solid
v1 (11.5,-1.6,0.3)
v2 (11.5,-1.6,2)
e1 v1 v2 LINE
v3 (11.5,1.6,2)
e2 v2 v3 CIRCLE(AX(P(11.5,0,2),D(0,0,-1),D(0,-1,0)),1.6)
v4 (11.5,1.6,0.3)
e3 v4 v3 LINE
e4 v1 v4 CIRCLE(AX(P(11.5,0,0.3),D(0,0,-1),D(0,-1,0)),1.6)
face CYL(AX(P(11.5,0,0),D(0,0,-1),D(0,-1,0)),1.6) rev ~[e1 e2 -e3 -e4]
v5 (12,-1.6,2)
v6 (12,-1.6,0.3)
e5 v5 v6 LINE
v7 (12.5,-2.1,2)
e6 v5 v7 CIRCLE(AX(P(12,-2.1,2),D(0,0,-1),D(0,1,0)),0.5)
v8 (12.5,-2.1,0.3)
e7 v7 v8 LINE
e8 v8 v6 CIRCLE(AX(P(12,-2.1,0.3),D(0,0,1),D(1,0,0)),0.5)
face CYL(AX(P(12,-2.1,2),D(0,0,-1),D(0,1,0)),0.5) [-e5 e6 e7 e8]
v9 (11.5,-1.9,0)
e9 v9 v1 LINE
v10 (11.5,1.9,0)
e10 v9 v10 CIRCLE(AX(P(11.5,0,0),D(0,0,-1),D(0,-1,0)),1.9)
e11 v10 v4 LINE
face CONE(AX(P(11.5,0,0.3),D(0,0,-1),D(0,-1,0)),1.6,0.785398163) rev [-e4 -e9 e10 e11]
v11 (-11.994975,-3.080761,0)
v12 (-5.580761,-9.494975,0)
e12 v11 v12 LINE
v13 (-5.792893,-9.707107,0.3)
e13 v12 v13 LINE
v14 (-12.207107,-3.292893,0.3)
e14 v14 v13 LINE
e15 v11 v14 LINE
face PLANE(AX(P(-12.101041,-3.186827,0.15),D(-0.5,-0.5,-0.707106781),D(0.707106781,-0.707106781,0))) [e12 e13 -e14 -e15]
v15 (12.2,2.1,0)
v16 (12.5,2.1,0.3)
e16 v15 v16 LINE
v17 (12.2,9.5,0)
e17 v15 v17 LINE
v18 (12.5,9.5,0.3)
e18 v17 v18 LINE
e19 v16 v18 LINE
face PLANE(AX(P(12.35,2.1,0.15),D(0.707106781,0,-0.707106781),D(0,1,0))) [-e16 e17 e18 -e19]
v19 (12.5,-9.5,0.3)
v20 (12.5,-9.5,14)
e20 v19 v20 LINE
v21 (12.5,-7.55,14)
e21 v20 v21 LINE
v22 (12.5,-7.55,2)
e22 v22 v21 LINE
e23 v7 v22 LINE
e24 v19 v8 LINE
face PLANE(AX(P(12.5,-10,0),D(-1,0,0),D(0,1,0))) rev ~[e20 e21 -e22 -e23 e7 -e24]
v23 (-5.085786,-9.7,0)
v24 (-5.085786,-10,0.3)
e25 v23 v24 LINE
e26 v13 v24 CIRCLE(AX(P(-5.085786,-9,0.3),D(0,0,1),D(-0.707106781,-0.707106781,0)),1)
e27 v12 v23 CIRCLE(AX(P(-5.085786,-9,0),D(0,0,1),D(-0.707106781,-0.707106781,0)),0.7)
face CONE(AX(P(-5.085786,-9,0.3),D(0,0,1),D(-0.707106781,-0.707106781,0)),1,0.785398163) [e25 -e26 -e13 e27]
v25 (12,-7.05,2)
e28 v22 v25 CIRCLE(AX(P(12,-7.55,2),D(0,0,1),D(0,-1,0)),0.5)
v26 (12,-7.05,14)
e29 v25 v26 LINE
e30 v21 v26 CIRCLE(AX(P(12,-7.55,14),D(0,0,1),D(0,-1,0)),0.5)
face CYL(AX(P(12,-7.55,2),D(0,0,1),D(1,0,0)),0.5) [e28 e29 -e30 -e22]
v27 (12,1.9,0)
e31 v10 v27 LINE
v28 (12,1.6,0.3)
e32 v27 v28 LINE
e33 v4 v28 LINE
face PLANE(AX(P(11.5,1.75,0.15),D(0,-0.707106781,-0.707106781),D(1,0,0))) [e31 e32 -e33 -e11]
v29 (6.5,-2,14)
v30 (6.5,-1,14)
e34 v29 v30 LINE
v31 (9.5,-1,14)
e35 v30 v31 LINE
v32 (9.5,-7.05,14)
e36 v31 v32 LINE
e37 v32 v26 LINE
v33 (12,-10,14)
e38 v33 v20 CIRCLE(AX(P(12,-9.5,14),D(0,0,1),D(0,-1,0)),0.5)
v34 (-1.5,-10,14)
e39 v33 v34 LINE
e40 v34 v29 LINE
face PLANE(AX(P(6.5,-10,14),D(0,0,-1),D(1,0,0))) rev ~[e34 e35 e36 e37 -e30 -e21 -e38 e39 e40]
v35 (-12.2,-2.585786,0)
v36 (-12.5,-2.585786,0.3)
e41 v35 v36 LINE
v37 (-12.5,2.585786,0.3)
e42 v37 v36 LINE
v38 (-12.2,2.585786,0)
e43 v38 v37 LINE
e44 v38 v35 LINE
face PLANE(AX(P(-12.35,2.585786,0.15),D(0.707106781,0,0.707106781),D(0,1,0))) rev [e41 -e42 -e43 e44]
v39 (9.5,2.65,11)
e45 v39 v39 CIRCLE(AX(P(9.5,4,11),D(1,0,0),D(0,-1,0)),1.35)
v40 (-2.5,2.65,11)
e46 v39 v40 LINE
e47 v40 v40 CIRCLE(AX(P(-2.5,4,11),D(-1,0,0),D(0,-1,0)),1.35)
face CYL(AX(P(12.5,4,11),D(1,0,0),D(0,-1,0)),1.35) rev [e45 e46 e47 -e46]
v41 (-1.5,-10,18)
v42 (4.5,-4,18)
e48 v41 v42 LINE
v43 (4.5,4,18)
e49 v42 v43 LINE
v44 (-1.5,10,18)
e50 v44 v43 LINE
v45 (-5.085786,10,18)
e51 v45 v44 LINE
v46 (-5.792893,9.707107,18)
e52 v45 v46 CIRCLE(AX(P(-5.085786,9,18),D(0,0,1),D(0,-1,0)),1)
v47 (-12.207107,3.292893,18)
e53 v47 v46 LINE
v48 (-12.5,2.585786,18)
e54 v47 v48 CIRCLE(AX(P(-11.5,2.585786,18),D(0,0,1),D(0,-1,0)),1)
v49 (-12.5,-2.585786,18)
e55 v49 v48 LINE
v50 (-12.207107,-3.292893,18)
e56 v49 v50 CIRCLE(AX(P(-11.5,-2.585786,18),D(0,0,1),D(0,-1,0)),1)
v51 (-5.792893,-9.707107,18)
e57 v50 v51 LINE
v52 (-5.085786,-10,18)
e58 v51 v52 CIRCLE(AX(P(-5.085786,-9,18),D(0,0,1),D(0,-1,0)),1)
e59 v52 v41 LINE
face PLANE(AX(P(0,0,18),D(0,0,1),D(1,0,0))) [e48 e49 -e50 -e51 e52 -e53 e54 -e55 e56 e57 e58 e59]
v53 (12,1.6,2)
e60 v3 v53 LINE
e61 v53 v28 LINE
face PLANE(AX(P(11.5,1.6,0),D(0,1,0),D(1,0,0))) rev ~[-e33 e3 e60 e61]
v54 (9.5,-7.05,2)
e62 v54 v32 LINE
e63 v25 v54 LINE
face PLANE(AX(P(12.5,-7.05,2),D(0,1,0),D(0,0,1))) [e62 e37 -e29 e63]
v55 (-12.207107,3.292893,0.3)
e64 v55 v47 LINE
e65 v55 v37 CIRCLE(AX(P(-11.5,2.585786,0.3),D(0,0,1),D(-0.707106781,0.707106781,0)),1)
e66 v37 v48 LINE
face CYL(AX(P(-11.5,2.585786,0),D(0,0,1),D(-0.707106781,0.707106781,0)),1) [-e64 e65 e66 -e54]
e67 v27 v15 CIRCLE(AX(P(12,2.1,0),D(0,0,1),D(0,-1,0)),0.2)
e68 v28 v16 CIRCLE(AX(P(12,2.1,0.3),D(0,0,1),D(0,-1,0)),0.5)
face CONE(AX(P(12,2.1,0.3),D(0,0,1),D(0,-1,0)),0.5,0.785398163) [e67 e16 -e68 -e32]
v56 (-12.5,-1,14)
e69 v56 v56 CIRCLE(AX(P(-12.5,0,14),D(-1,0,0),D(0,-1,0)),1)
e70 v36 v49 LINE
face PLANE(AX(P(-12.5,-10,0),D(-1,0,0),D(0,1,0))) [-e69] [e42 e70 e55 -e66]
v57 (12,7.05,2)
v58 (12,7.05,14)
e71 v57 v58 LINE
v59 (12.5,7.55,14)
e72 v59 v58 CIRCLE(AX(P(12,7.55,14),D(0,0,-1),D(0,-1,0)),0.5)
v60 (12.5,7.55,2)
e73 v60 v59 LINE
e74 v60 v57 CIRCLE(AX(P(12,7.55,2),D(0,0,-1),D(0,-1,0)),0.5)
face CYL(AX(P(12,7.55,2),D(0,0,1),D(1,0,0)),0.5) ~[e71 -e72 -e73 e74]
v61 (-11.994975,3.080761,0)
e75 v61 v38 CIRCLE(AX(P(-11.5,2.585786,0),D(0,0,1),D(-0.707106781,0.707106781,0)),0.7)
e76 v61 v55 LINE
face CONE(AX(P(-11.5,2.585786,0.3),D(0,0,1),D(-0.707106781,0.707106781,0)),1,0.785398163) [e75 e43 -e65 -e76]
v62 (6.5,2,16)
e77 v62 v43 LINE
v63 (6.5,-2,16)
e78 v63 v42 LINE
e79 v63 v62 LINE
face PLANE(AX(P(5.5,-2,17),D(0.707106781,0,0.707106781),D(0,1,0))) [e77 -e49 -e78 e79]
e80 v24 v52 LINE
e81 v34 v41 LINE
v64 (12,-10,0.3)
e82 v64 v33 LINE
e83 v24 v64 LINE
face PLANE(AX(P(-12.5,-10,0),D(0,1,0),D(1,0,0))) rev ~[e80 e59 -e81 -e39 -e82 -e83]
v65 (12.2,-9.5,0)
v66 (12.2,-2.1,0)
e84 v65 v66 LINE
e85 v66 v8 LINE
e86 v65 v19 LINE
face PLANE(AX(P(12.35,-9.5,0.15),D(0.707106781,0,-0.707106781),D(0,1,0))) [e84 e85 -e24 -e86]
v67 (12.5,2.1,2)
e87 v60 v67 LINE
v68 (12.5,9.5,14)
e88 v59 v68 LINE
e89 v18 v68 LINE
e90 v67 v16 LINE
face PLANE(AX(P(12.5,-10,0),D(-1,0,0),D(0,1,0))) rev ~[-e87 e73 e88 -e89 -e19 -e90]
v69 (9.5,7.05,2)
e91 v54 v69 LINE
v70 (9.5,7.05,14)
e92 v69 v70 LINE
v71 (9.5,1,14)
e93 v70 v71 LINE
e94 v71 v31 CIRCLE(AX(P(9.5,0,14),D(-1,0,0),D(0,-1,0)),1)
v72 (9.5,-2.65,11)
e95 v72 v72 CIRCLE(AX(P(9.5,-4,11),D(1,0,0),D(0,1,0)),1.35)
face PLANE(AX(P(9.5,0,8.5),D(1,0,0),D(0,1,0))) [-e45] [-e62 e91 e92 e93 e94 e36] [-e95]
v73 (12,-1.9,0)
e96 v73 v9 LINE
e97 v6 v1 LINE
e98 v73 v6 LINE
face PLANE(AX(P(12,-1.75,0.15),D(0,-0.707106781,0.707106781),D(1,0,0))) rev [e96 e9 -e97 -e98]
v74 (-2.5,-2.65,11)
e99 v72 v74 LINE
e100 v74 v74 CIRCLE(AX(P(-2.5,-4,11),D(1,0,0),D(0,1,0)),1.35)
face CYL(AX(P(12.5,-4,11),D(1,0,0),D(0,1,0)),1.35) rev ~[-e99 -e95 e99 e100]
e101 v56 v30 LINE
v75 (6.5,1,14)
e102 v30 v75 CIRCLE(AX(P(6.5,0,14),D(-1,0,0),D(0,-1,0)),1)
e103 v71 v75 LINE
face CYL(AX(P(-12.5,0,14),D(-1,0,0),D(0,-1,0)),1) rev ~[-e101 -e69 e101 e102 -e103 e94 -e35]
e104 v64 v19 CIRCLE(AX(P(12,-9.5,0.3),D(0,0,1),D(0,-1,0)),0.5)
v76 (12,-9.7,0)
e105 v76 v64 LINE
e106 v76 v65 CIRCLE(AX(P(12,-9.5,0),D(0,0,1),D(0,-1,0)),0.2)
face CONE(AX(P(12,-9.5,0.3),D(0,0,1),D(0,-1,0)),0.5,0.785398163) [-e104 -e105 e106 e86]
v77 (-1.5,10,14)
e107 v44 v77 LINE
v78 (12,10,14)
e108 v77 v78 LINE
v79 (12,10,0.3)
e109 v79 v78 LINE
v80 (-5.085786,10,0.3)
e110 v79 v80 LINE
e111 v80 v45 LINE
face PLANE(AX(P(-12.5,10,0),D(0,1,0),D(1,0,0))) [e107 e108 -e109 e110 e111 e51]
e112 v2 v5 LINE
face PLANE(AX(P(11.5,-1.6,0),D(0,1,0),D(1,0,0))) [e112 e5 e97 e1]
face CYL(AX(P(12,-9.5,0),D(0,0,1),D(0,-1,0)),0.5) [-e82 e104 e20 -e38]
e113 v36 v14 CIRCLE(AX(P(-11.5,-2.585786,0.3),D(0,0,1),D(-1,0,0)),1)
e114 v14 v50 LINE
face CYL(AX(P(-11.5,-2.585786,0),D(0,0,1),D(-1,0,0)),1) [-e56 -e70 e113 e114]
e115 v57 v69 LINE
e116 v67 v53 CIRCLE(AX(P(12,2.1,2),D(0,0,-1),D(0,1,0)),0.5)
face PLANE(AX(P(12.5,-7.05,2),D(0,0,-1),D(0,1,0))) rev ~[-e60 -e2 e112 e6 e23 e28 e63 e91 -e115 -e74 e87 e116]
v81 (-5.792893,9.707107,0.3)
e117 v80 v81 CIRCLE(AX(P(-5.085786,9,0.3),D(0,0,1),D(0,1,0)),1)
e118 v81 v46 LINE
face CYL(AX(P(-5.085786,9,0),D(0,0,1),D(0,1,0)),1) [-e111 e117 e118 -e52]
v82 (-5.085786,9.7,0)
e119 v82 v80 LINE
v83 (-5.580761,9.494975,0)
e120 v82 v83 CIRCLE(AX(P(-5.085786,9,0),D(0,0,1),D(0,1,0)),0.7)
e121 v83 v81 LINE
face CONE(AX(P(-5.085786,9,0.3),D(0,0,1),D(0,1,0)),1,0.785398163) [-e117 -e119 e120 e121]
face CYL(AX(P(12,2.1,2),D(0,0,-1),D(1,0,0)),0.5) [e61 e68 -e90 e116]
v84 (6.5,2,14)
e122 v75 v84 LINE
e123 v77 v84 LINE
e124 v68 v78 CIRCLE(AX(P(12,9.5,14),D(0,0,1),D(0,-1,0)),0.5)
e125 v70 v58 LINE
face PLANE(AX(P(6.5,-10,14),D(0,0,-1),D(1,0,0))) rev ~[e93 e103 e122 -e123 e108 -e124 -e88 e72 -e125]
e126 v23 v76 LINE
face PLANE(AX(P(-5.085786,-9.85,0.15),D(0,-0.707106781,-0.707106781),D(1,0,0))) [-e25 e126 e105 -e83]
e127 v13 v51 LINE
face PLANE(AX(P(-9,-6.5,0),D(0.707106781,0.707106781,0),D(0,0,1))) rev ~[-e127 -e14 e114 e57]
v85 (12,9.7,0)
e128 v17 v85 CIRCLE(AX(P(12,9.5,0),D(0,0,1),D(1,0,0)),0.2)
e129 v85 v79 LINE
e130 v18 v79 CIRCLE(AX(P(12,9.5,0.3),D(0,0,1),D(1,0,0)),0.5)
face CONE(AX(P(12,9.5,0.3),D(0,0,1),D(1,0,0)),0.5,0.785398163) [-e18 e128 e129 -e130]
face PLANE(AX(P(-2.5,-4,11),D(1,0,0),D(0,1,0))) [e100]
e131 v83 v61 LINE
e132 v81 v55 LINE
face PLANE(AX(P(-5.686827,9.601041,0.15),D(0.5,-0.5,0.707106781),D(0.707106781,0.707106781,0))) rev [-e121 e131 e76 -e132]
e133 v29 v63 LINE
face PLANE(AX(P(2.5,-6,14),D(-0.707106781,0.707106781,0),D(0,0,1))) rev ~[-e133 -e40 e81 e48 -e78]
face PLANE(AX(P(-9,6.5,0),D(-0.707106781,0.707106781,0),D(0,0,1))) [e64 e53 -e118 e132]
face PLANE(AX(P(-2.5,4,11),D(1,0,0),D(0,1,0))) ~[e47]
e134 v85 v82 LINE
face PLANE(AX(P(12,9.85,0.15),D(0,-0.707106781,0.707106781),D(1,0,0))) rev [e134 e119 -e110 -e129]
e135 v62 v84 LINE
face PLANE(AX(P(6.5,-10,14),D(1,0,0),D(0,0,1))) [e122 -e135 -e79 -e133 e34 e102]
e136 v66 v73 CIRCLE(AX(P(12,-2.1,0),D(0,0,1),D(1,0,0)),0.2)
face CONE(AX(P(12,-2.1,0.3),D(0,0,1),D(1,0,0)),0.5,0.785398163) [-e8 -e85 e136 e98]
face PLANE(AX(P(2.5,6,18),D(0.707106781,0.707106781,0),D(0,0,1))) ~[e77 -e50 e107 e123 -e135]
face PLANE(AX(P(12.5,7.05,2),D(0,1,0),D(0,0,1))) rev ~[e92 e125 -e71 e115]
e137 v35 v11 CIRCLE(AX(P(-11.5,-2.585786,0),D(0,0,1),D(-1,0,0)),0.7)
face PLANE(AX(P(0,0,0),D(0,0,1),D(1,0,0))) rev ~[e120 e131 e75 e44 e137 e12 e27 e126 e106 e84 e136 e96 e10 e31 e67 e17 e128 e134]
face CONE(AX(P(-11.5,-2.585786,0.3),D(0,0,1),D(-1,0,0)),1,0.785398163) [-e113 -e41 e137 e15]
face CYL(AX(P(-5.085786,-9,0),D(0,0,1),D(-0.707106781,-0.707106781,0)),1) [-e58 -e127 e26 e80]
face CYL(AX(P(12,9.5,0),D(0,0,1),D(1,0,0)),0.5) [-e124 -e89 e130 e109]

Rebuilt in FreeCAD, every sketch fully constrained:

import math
import FreeCAD as App
import Part
import Sketcher
Q = App.Units.Quantity


def edges_at(feature, points):
    """Names of the edges that pass closest to the given points."""
    edges = feature.Shape.Edges
    near = lambda p: min(range(len(edges)), key=lambda i: edges[i].distToShape(Part.Vertex(*p))[0])
    return sorted({f"Edge{near(p) + 1}" for p in points})


def add_polygon(sketch, points):
    """Adds a closed chain of lines whose ends are joined by coincident constraints."""
    first, n = sketch.GeometryCount, len(points)
    for a, b in zip(points, points[1:] + points[:1]):
        sketch.addGeometry(Part.LineSegment(App.Vector(*a, 0), App.Vector(*b, 0)), False)
    for i in range(n):
        sketch.addConstraint(Sketcher.Constraint("Coincident", first + i, 2, first + (i + 1) % n, 1))

doc = App.newDocument("Part")
body = doc.addObject("PartDesign::Body", "Body")

# Sketch on XY plane
sketch1 = body.newObject("Sketcher::SketchObject", "Sketch")
sketch1.AttachmentSupport = (doc.getObject("XY_Plane"), [""])
sketch1.MapMode = "FlatFace"
add_polygon(sketch1, [(-12, 10), (-12, -10), (12, -10), (12, 10)])  # lines 0-3
sketch1.addConstraint([
    Sketcher.Constraint("Vertical", 0),
    Sketcher.Constraint("Horizontal", 1),
    Sketcher.Constraint("Vertical", 2),
    Sketcher.Constraint("Horizontal", 3),
    Sketcher.Constraint("Symmetric", 0, 2, 2, 2, -1, 1),
    Sketcher.Constraint("DistanceX", 1, 1, 1, 2, Q("25 mm")),
    Sketcher.Constraint("DistanceY", 0, 2, 0, 1, Q("20 mm")),
])
pad1 = body.newObject("PartDesign::Pad", "Pad")
pad1.Profile = sketch1
pad1.Length = 18

# Sketch on YZ plane
sketch2 = body.newObject("Sketcher::SketchObject", "Sketch001")
sketch2.AttachmentSupport = (doc.getObject("YZ_Plane"), [""])
sketch2.MapMode = "FlatFace"
sketch2.AttachmentOffset = App.Placement(App.Vector(0, 0, -12.5), App.Rotation())
sketch2.addGeometry(Part.Circle(App.Vector(0, 14, 0), App.Vector(0, 0, 1), 1), False)
sketch2.addConstraint([
    Sketcher.Constraint("PointOnObject", 0, 3, -2),
    Sketcher.Constraint("Diameter", 0, Q("2 mm")),
    Sketcher.Constraint("DistanceY", -1, 1, 0, 3, Q("14 mm")),
])
pocket1 = body.newObject("PartDesign::Pocket", "Pocket")
pocket1.Profile = sketch2
pocket1.Type = "ThroughAll"
pocket1.Reversed = True

# Sketch on XZ plane
sketch3 = body.newObject("Sketcher::SketchObject", "Sketch002")
sketch3.AttachmentSupport = (doc.getObject("XZ_Plane"), [""])
sketch3.MapMode = "FlatFace"
sketch3.AttachmentOffset = App.Placement(App.Vector(0, 0, 10), App.Rotation())
add_polygon(sketch3, [(6, 22), (6, 14), (12, 14), (12, 22)])  # lines 0-3
sketch3.addConstraint([
    Sketcher.Constraint("Vertical", 0),
    Sketcher.Constraint("Horizontal", 1),
    Sketcher.Constraint("Vertical", 2),
    Sketcher.Constraint("Horizontal", 3),
    Sketcher.Constraint("DistanceX", 1, 1, 1, 2, Q("6 mm")),
    Sketcher.Constraint("DistanceY", 0, 2, 0, 1, Q("8 mm")),
    Sketcher.Constraint("DistanceY", -1, 1, 0, 2, Q("14 mm")),
    Sketcher.Constraint("DistanceX", -1, 1, 0, 2, Q("6.5 mm")),
])
pocket2 = body.newObject("PartDesign::Pocket", "Pocket001")
pocket2.Profile = sketch3
pocket2.Type = "ThroughAll"

# Sketch on YZ plane
sketch4 = body.newObject("Sketcher::SketchObject", "Sketch003")
sketch4.AttachmentSupport = (doc.getObject("YZ_Plane"), [""])
sketch4.MapMode = "FlatFace"
sketch4.AttachmentOffset = App.Placement(App.Vector(0, 0, 12.5), App.Rotation())
sketch4.addGeometry(Part.Circle(App.Vector(-4, 11, 0), App.Vector(0, 0, 1), 1.4), False)
sketch4.addConstraint([
    Sketcher.Constraint("Diameter", 0, Q("2.7 mm")),
    Sketcher.Constraint("DistanceX", 0, 3, -1, 1, Q("4 mm")),
    Sketcher.Constraint("DistanceY", -1, 1, 0, 3, Q("11 mm")),
])
pocket3 = body.newObject("PartDesign::Pocket", "Pocket002")
pocket3.Profile = sketch4
pocket3.Length = 15
doc.recompute()

mirrored = body.newObject("PartDesign::Mirrored", "Mirrored")
mirrored.Originals = [pocket3]
mirrored.MirrorPlane = (doc.getObject("XZ_Plane"), [""])
body.Tip = mirrored
doc.recompute()

chamfer = body.newObject("PartDesign::Chamfer", "Chamfer")
chamfer.Base = (mirrored, edges_at(mirrored, [(6.5, -10, 16), (6.5, 10, 16)]))
chamfer.Size = 8
doc.recompute()

chamfer2 = body.newObject("PartDesign::Chamfer", "Chamfer001")
chamfer2.Base = (chamfer, edges_at(chamfer, [(6.5, 0, 18)]))
chamfer2.Size = 2

# Sketch on YZ plane
sketch5 = body.newObject("Sketcher::SketchObject", "Sketch004")
sketch5.AttachmentSupport = (doc.getObject("YZ_Plane"), [""])
sketch5.MapMode = "FlatFace"
sketch5.AttachmentOffset = App.Placement(App.Vector(0, 0, 12.5), App.Rotation())
add_polygon(sketch5, [(-7, 15), (-7, 2), (7, 2), (7, 15)])  # lines 0-3
sketch5.addConstraint([
    Sketcher.Constraint("Vertical", 0),
    Sketcher.Constraint("Horizontal", 1),
    Sketcher.Constraint("Vertical", 2),
    Sketcher.Constraint("Horizontal", 3),
    Sketcher.Constraint("DistanceY", 0, 2, 0, 1, Q("13 mm")),
    Sketcher.Constraint("DistanceX", 1, 1, 1, 2, Q("14.1 mm")),
    Sketcher.Constraint("DistanceY", -1, 1, 0, 2, Q("2 mm")),
    Sketcher.Constraint("DistanceX", 0, 2, -1, 1, Q("7.05 mm")),
])
pocket4 = body.newObject("PartDesign::Pocket", "Pocket003")
pocket4.Profile = sketch5
pocket4.Length = 3
doc.recompute()

fillet = body.newObject("PartDesign::Fillet", "Fillet")
fillet.Base = (pocket4, edges_at(pocket4, [
    (12.5, -10, 7),
    (12.5, -7.05, 8),
    (12.5, 7.05, 8),
    (12.5, 10, 7),
]))
fillet.Radius = 0.5
doc.recompute()

chamfer3 = body.newObject("PartDesign::Chamfer", "Chamfer002")
chamfer3.Base = (fillet, edges_at(fillet, [(-12.5, -10, 9), (-12.5, 10, 9)]))
chamfer3.Size = 7
doc.recompute()

fillet2 = body.newObject("PartDesign::Fillet", "Fillet001")
fillet2.Base = (chamfer3, edges_at(chamfer3, [
    (-12.5, -3, 9),
    (-5.5, -10, 9),
    (-12.5, 3, 9),
    (-5.5, 10, 9),
]))
fillet2.Radius = 1

# Sketch on XY plane
sketch6 = body.newObject("Sketcher::SketchObject", "Sketch005")
sketch6.AttachmentSupport = (doc.getObject("XY_Plane"), [""])
sketch6.MapMode = "FlatFace"
sketch6.addGeometry([
    Part.ArcOfCircle(Part.Circle(App.Vector(11.5, 0, 0), App.Vector(0, 0, 1), 1.6), math.radians(90), math.radians(270)),
    Part.LineSegment(App.Vector(11.5, 1.6, 0), App.Vector(21.5, 1.6, 0)),
    Part.ArcOfCircle(Part.Circle(App.Vector(21.5, 0, 0), App.Vector(0, 0, 1), 1.6), math.radians(-90), math.radians(90)),
    Part.LineSegment(App.Vector(21.5, -1.6, 0), App.Vector(11.5, -1.6, 0)),
], False)
sketch6.addConstraint([
    Sketcher.Constraint("Tangent", 0, 1, 1, 1),
    Sketcher.Constraint("Tangent", 1, 2, 2, 2),
    Sketcher.Constraint("Tangent", 2, 1, 3, 1),
    Sketcher.Constraint("Tangent", 3, 2, 0, 2),
    Sketcher.Constraint("Horizontal", 1),
    Sketcher.Constraint("Horizontal", 3),
    Sketcher.Constraint("PointOnObject", 0, 3, -1),
    Sketcher.Constraint("Radius", 0, Q("1.6 mm")),
    Sketcher.Constraint("DistanceX", 1, 1, 1, 2, Q("10 mm")),
    Sketcher.Constraint("DistanceX", -1, 1, 0, 3, Q("11.5 mm")),
])
pocket5 = body.newObject("PartDesign::Pocket", "Pocket004")
pocket5.Profile = sketch6
pocket5.Length = 5
pocket5.Reversed = True
doc.recompute()

fillet3 = body.newObject("PartDesign::Fillet", "Fillet002")
fillet3.Base = (pocket5, edges_at(pocket5, [(12.5, 1.6, 1), (12.5, -1.6, 1)]))
fillet3.Radius = 0.5
doc.recompute()

chamfer4 = body.newObject("PartDesign::Chamfer", "Chamfer003")
chamfer4.Base = (fillet3, edges_at(fillet3, [(3.457, -10, 0)]))
chamfer4.Size = 0.3

doc.recompute()
